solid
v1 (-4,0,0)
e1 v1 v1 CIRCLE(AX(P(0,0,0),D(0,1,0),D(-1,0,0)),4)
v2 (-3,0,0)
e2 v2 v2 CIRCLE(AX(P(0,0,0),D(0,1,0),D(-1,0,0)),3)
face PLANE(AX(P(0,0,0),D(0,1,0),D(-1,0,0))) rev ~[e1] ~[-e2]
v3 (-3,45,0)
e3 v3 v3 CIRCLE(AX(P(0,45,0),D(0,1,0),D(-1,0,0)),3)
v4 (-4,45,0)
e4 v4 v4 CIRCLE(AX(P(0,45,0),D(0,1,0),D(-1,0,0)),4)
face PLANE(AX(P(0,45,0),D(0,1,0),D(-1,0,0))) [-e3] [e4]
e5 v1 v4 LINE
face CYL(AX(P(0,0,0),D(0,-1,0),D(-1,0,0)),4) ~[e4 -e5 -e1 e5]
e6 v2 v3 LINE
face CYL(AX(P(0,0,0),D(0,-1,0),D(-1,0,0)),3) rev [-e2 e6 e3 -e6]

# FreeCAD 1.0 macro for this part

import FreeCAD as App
import Part
import Sketcher
from FreeCAD import Vector
Q = App.Units.Quantity

doc = App.newDocument("Part")
params = doc.addObject("Spreadsheet::Sheet", "Params")
for row, (alias, value) in enumerate([
    ("sketch1_diameter", "8 mm"),
    ("sketch1_diameter2", "6 mm"),
    ("pad1_length", "45 mm"),
], start=1):
    params.set(f"A{row}", alias)
    params.set(f"B{row}", "=" + value)
    params.setAlias(f"B{row}", alias)

body = doc.addObject("PartDesign::Body", "Body")

# Sketch on XZ plane
sketch1 = doc.addObject("Sketcher::SketchObject", "Sketch")
body.addObject(sketch1)
sketch1.AttachmentSupport = (doc.XZ_Plane, [""])
sketch1.MapMode = "FlatFace"
sketch1.addGeometry([
    Part.Circle(Vector(0, 0, 0), Vector(0, 0, 1), 4),
    Part.Circle(Vector(0, 0, 0), Vector(0, 0, 1), 3),
], False)
sketch1.addConstraint([
    Sketcher.Constraint("Coincident", 0, 3, -1, 1),
    Sketcher.Constraint("Coincident", 1, 3, -1, 1),
    Sketcher.Constraint("Diameter", 0, Q("8 mm")),
    Sketcher.Constraint("Diameter", 1, Q("6 mm")),
])
sketch1.setExpression("Constraints[2]", "Params.sketch1_diameter")
sketch1.setExpression("Constraints[3]", "Params.sketch1_diameter2")
pad1 = doc.addObject("PartDesign::Pad", "Pad")
body.addObject(pad1)
pad1.Profile = sketch1
pad1.setExpression("Length", "Params.pad1_length")
pad1.Reversed = True

doc.recompute()
